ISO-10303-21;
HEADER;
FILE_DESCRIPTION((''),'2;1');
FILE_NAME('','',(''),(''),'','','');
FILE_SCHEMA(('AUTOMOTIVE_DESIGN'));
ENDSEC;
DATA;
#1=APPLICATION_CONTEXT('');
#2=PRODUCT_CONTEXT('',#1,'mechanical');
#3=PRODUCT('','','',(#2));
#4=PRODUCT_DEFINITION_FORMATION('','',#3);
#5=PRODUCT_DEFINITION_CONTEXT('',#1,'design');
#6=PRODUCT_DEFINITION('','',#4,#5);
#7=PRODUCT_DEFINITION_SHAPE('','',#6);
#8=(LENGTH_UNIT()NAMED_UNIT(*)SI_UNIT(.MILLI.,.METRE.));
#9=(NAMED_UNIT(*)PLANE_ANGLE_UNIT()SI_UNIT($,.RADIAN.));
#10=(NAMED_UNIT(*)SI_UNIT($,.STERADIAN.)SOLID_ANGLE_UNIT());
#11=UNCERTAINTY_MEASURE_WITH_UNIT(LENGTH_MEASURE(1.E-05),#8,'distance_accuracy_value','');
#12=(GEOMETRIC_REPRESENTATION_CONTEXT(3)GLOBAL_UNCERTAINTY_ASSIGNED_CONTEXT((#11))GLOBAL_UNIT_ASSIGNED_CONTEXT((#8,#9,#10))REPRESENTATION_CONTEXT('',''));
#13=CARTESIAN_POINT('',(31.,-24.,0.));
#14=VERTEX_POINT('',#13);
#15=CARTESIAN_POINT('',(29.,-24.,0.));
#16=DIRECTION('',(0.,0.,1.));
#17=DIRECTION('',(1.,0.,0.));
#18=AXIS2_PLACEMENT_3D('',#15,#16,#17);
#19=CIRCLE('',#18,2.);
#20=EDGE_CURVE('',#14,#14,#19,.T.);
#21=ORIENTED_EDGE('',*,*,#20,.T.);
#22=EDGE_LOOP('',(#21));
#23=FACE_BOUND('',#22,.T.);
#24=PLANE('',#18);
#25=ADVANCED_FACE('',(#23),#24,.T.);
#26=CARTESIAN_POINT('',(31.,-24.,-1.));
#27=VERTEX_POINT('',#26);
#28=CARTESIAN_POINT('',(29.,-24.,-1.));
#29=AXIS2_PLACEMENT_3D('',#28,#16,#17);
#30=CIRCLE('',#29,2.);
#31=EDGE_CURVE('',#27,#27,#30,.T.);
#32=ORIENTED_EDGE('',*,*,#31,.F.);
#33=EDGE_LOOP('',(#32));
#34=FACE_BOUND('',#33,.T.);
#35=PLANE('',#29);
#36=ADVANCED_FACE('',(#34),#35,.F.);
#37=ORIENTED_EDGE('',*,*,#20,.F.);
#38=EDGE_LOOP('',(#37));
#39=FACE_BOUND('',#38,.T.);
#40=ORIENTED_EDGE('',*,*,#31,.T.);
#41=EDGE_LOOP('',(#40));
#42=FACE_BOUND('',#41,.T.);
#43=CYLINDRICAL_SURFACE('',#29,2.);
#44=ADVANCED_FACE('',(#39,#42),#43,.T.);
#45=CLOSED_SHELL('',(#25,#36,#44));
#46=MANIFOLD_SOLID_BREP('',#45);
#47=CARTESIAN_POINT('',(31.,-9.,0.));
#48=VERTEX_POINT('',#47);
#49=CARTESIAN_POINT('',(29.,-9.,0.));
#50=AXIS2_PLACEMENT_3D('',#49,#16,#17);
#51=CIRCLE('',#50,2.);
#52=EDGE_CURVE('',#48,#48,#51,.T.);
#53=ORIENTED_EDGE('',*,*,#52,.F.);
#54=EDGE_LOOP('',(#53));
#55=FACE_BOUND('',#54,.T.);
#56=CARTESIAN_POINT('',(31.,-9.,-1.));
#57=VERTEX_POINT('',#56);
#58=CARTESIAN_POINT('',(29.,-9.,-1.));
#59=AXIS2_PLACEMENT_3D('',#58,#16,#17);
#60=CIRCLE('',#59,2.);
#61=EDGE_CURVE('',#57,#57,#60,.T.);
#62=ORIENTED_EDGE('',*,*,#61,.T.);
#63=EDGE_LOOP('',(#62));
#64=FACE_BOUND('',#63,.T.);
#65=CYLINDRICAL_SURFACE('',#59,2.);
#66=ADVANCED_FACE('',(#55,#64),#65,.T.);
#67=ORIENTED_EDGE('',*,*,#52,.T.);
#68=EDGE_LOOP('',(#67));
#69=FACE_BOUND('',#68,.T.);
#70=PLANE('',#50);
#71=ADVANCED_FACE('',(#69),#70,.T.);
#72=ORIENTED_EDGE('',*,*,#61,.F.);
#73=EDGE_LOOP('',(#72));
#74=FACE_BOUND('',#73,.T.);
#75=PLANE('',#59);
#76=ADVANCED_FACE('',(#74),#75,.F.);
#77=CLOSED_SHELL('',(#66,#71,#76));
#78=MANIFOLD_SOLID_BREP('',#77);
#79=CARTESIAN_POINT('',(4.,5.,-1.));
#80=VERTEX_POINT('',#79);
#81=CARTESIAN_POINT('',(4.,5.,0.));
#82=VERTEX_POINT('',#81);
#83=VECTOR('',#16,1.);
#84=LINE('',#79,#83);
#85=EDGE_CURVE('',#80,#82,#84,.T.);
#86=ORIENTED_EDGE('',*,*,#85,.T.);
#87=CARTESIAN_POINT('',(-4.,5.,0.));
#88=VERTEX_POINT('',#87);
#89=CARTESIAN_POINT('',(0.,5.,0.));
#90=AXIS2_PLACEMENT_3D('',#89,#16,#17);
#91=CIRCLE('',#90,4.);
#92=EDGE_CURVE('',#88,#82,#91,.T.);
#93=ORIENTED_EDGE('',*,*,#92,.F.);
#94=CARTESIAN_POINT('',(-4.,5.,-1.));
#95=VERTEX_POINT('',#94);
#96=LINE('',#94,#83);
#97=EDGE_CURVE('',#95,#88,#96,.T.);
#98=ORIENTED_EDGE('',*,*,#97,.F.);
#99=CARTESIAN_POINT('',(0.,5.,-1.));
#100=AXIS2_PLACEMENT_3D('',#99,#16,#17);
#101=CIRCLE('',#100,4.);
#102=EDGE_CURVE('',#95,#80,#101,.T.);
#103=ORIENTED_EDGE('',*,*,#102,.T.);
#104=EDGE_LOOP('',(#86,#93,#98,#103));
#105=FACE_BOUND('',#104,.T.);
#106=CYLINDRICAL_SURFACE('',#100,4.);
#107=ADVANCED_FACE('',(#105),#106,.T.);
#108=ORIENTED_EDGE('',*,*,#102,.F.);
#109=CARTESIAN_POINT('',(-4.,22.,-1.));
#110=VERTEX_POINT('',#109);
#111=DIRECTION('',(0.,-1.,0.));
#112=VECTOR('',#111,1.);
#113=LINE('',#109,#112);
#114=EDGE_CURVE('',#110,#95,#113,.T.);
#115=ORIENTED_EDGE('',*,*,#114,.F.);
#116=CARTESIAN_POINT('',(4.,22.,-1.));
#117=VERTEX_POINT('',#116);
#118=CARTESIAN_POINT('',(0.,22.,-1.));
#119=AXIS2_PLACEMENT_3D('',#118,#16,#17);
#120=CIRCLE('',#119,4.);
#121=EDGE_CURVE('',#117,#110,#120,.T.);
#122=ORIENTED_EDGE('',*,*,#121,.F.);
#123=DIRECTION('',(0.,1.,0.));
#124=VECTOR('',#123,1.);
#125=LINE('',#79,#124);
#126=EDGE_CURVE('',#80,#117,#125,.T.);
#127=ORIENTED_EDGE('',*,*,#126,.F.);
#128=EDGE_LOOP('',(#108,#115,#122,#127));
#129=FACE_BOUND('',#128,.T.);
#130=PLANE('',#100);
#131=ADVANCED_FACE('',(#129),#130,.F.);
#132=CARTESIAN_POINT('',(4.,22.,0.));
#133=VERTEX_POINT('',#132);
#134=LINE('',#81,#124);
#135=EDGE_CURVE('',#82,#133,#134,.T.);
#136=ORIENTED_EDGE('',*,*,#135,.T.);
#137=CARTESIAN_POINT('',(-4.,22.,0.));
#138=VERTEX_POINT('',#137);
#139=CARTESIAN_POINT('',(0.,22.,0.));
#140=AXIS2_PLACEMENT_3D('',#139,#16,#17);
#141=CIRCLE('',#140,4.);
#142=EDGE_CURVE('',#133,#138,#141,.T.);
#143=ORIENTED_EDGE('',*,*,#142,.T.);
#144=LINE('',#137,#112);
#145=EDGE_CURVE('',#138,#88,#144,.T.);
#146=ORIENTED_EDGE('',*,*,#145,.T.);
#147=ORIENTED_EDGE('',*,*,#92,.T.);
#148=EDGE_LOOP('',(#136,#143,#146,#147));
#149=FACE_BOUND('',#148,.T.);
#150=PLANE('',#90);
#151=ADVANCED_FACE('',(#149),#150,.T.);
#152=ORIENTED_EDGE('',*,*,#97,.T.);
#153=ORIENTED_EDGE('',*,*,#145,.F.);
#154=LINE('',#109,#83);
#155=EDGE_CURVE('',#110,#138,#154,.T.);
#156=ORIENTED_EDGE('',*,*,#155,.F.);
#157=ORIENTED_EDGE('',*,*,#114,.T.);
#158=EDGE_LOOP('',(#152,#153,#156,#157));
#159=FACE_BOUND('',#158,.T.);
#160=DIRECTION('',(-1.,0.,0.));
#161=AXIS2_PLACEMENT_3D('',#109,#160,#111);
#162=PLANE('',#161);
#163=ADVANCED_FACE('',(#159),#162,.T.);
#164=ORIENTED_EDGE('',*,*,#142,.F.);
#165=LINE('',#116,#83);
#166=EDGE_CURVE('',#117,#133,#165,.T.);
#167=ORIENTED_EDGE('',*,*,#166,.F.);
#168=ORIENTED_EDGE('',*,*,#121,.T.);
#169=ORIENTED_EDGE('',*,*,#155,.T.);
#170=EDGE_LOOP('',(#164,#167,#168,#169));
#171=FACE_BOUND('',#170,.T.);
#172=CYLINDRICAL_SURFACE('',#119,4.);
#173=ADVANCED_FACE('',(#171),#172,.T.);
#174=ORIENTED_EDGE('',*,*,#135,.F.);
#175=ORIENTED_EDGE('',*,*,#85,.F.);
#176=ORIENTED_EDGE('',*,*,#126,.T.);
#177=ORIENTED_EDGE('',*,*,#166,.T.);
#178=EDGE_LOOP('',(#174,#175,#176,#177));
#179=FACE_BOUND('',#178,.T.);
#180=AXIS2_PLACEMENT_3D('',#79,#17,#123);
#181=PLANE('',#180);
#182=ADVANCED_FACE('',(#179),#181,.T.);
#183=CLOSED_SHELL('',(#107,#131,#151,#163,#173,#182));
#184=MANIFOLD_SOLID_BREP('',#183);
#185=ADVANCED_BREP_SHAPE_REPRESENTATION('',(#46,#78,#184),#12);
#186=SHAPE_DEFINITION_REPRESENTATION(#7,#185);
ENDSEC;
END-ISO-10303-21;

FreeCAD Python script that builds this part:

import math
import FreeCAD as App
import Part
import Sketcher

V = App.Vector
Q = App.Units.Quantity

doc = App.newDocument("Part")
body = doc.addObject("PartDesign::Body", "Body")

# Sketch on XY plane
sketch1 = doc.addObject("Sketcher::SketchObject", "Sketch")
body.addObject(sketch1)
sketch1.AttachmentSupport = (doc.XY_Plane, [""])
sketch1.MapMode = "FlatFace"
sketch1.addGeometry(Part.Circle(V(29, -24, 0), V(0, 0, 1), 2), False)
sketch1.addConstraint([
    Sketcher.Constraint("Diameter", 0, Q("4 mm")),
    Sketcher.Constraint("DistanceX", -1, 1, 0, 3, Q("29 mm")),
    Sketcher.Constraint("DistanceY", 0, 3, -1, 1, Q("24 mm")),
])
pad1 = doc.addObject("PartDesign::Pad", "Pad")
body.addObject(pad1)
pad1.Profile = sketch1
pad1.Length = 1
pad1.Reversed = True
body2 = doc.addObject("PartDesign::Body", "Body001")

# Sketch on XY plane
sketch2 = doc.addObject("Sketcher::SketchObject", "Sketch001")
body2.addObject(sketch2)
sketch2.AttachmentSupport = (doc.getObject("XY_Plane001"), [""])
sketch2.MapMode = "FlatFace"
sketch2.addGeometry(Part.Circle(V(29, -9, 0), V(0, 0, 1), 2), False)
sketch2.addConstraint([
    Sketcher.Constraint("Diameter", 0, Q("4 mm")),
    Sketcher.Constraint("DistanceX", -1, 1, 0, 3, Q("29 mm")),
    Sketcher.Constraint("DistanceY", 0, 3, -1, 1, Q("9 mm")),
])
pad2 = doc.addObject("PartDesign::Pad", "Pad001")
body2.addObject(pad2)
pad2.Profile = sketch2
pad2.Length = 1
pad2.Reversed = True
body3 = doc.addObject("PartDesign::Body", "Body002")

# Sketch on XY plane
sketch3 = doc.addObject("Sketcher::SketchObject", "Sketch002")
body3.addObject(sketch3)
sketch3.AttachmentSupport = (doc.getObject("XY_Plane002"), [""])
sketch3.MapMode = "FlatFace"
sketch3.addGeometry([
    Part.LineSegment(V(4, 5, 0), V(4, 22, 0)),
    Part.ArcOfCircle(Part.Circle(V(0, 22, 0), V(0, 0, 1), 4), math.radians(0), math.radians(180)),
    Part.LineSegment(V(-4, 22, 0), V(-4, 5, 0)),
    Part.ArcOfCircle(Part.Circle(V(0, 5, 0), V(0, 0, 1), 4), math.radians(180), math.radians(360)),
], False)
sketch3.addConstraint([
    Sketcher.Constraint("Tangent", 0, 2, 1, 1),
    Sketcher.Constraint("Tangent", 1, 2, 2, 1),
    Sketcher.Constraint("Tangent", 2, 2, 3, 1),
    Sketcher.Constraint("Tangent", 3, 2, 0, 1),
    Sketcher.Constraint("Vertical", 0),
    Sketcher.Constraint("Vertical", 2),
    Sketcher.Constraint("PointOnObject", 1, 3, -2),
    Sketcher.Constraint("Radius", 1, Q("4 mm")),
    Sketcher.Constraint("DistanceY", 0, 1, 0, 2, Q("17 mm")),
    Sketcher.Constraint("DistanceY", -1, 1, 1, 3, Q("22 mm")),
])
pad3 = doc.addObject("PartDesign::Pad", "Pad002")
body3.addObject(pad3)
pad3.Profile = sketch3
pad3.Length = 1
pad3.Reversed = True

doc.recompute()
